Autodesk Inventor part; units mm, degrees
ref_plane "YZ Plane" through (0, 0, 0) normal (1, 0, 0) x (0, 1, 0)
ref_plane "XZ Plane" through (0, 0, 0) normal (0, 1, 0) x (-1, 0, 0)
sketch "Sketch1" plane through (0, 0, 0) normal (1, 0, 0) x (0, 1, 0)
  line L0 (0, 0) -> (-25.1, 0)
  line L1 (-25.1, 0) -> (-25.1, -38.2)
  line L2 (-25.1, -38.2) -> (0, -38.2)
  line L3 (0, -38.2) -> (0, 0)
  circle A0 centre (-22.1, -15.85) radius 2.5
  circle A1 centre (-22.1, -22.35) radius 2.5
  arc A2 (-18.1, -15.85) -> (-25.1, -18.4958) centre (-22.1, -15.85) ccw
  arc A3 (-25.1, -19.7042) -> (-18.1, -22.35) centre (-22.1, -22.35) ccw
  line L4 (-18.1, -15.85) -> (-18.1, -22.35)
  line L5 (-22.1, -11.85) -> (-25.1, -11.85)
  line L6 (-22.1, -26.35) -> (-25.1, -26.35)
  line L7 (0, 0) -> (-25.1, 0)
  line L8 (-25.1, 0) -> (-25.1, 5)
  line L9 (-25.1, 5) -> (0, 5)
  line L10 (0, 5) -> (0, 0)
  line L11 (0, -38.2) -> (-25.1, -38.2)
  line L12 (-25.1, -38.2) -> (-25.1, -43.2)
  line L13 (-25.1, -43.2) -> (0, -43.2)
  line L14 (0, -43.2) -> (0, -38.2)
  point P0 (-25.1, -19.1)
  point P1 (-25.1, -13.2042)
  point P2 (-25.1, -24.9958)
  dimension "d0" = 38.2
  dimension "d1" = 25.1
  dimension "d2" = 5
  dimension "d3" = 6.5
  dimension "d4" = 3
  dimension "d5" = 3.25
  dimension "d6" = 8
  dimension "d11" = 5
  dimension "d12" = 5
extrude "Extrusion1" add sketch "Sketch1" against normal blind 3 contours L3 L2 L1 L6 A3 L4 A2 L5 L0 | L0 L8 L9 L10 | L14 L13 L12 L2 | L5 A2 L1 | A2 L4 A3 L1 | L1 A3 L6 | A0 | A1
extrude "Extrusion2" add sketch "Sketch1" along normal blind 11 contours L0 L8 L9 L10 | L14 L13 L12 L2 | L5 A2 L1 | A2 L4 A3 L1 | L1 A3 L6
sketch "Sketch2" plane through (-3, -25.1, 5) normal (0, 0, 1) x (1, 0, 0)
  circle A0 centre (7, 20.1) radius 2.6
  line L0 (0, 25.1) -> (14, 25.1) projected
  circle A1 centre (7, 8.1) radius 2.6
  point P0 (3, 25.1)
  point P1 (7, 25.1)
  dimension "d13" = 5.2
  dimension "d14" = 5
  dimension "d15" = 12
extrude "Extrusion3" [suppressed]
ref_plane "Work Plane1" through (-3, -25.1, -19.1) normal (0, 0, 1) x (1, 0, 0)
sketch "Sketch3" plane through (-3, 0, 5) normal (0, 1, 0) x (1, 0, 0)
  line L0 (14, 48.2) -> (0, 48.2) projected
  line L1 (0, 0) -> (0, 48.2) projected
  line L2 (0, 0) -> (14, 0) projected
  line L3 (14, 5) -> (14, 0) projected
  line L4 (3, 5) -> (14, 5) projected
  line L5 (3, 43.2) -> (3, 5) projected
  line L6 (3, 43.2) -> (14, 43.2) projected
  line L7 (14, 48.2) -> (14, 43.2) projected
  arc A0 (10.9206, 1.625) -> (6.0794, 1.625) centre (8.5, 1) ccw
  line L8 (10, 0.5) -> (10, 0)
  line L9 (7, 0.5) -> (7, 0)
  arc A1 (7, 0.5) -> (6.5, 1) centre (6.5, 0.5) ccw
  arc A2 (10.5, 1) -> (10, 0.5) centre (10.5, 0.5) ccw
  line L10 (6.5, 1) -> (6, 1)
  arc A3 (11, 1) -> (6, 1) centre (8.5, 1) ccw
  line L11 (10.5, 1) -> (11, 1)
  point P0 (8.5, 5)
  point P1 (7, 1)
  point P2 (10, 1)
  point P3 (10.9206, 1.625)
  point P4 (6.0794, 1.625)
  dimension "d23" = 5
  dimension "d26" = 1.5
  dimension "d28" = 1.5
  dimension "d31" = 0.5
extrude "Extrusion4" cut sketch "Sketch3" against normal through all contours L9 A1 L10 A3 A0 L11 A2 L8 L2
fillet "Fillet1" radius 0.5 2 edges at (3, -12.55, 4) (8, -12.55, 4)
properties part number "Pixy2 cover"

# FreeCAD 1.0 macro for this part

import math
import FreeCAD as App
import Part
import Sketcher
from FreeCAD import Vector
Q = App.Units.Quantity


def edges_at(feature, points):
    """Names of the edges that pass closest to the given points."""
    edges = feature.Shape.Edges
    near = lambda p: min(range(len(edges)), key=lambda i: edges[i].distToShape(Part.Vertex(*p))[0])
    return sorted({f"Edge{near(p) + 1}" for p in points})


def add_polygon(sketch, points):
    """Adds a closed chain of lines whose ends are joined by coincident constraints."""
    first, n = sketch.GeometryCount, len(points)
    for a, b in zip(points, points[1:] + points[:1]):
        sketch.addGeometry(Part.LineSegment(App.Vector(*a, 0), App.Vector(*b, 0)), False)
    for i in range(n):
        sketch.addConstraint(Sketcher.Constraint("Coincident", first + i, 2, first + (i + 1) % n, 1))

doc = App.newDocument("Part")
params = doc.addObject("Spreadsheet::Sheet", "Params")
for row, (alias, value) in enumerate([
    ("sketch1_width", "25.1 mm"),
    ("sketch1_height", "48.2 mm"),
    ("pad1_length", "3 mm"),
    ("sketch2_diameter", "5 mm"),
    ("sketch2_radius", "4 mm"),
    ("sketch2_width", "3 mm"),
    ("sketch2_height", "5 mm"),
    ("sketch2_width2", "25.1 mm"),
    ("pad2_length", "11 mm"),
    ("sketch3_radius", "0.5 mm"),
    ("sketch3_radius2", "2.5 mm"),
    ("sketch3_width", "0.5 mm"),
    ("fillet_radius", "0.5 mm"),
], start=1):
    params.set(f"A{row}", alias)
    params.set(f"B{row}", "=" + value)
    params.setAlias(f"B{row}", alias)

body = doc.addObject("PartDesign::Body", "Body")

# Sketch on YZ plane
sketch1 = body.newObject("Sketcher::SketchObject", "Sketch")
sketch1.AttachmentSupport = (doc.getObject("YZ_Plane"), [""])
sketch1.MapMode = "FlatFace"
add_polygon(sketch1, [(0, 5), (-25.1, 5), (-25.1, -43.2), (0, -43.2)])  # lines 0-3
sketch1.addConstraint([
    Sketcher.Constraint("Horizontal", 0),
    Sketcher.Constraint("Vertical", 1),
    Sketcher.Constraint("Horizontal", 2),
    Sketcher.Constraint("Vertical", 3),
    Sketcher.Constraint("PointOnObject", 2, 2, -2),
    Sketcher.Constraint("DistanceX", 0, 2, 0, 1, Q("25.1 mm")),
    Sketcher.Constraint("DistanceY", -1, 1, 0, 2, Q("5 mm")),
    Sketcher.Constraint("DistanceY", 1, 2, 1, 1, Q("48.2 mm")),
])
sketch1.setExpression("Constraints[9]", "Params.sketch1_width")
sketch1.setExpression("Constraints[11]", "Params.sketch1_height")
pad1 = body.newObject("PartDesign::Pad", "Pad")
pad1.Profile = sketch1
pad1.setExpression("Length", "Params.pad1_length")
pad1.Reversed = True

# Sketch on YZ plane
sketch2 = body.newObject("Sketcher::SketchObject", "Sketch001")
sketch2.AttachmentSupport = (doc.getObject("YZ_Plane"), [""])
sketch2.MapMode = "FlatFace"
add_polygon(sketch2, [(-25.1, 0), (0, 0), (0, 5), (-25.1, 5)])  # lines 0-3
add_polygon(sketch2, [(0, -43.2), (0, -38.2), (-25.1, -38.2), (-25.1, -43.2)])  # lines 4-7
sketch2.addGeometry(Part.LineSegment(Vector(-22.1, -11.85, 0), Vector(-25.1, -11.85, 0)), False)  # 8
sketch2.addGeometry(Part.LineSegment(Vector(-25.1, -11.85, 0), Vector(-25.1, -26.35, 0)), False)  # 9
sketch2.addGeometry(Part.LineSegment(Vector(-25.1, -26.35, 0), Vector(-22.1, -26.35, 0)), False)  # 10
sketch2.addGeometry(Part.ArcOfCircle(Part.Circle(Vector(-22.1, -22.35, 0), Vector(0, 0, 1), 4.000032), math.radians(-90), math.radians(0)), False)  # 11
sketch2.addGeometry(Part.LineSegment(Vector(-18.1, -22.35, 0), Vector(-18.1, -15.85, 0)), False)  # 12
sketch2.addGeometry(Part.ArcOfCircle(Part.Circle(Vector(-22.1, -15.85, 0), Vector(0, 0, 1), 4), math.radians(0), math.radians(90)), False)  # 13
sketch2.addGeometry(Part.Circle(Vector(-22.1, -15.85, 0), Vector(0, 0, 1), 2.5), False)  # 14
sketch2.addGeometry(Part.Circle(Vector(-22.1, -22.35, 0), Vector(0, 0, 1), 2.5), False)  # 15
sketch2.addConstraint([
    Sketcher.Constraint("Coincident", 8, 2, 9, 1),
    Sketcher.Constraint("Coincident", 9, 2, 10, 1),
    Sketcher.Constraint("Tangent", 10, 2, 11, 1),
    Sketcher.Constraint("Tangent", 11, 2, 12, 1),
    Sketcher.Constraint("Tangent", 12, 2, 13, 1),
    Sketcher.Constraint("Tangent", 13, 2, 8, 1),
    Sketcher.Constraint("Horizontal", 0),
    Sketcher.Constraint("Vertical", 1),
    Sketcher.Constraint("Horizontal", 2),
    Sketcher.Constraint("Vertical", 3),
    Sketcher.Constraint("Vertical", 4),
    Sketcher.Constraint("Horizontal", 5),
    Sketcher.Constraint("Vertical", 6),
    Sketcher.Constraint("Horizontal", 7),
    Sketcher.Constraint("Horizontal", 8),
    Sketcher.Constraint("Vertical", 9),
    Sketcher.Constraint("Horizontal", 10),
    Sketcher.Constraint("Vertical", 12),
    Sketcher.Constraint("Coincident", 0, 2, -1, 1),
    Sketcher.Constraint("Coincident", 14, 3, 13, 3),
    Sketcher.Constraint("Coincident", 15, 3, 11, 3),
    Sketcher.Constraint("Equal", 11, 13),
    Sketcher.Constraint("Equal", 14, 15),
    Sketcher.Constraint("PointOnObject", 4, 2, -2),
    Sketcher.Constraint("Vertical", 3, 2, 5, 2),
    Sketcher.Constraint("Vertical", 6, 2, 8, 2),
    Sketcher.Constraint("Equal", 3, 4),
    Sketcher.Constraint("Diameter", 14, Q("5 mm")),
    Sketcher.Constraint("Radius", 11, Q("4 mm")),
    Sketcher.Constraint("DistanceX", 8, 2, 8, 1, Q("3 mm")),
    Sketcher.Constraint("DistanceY", 1, 1, 1, 2, Q("5 mm")),
    Sketcher.Constraint("DistanceX", 0, 1, 0, 2, Q("25.1 mm")),
    Sketcher.Constraint("DistanceY", 12, 1, 12, 2, Q("6.5 mm")),
    Sketcher.Constraint("DistanceY", 4, 2, -1, 1, Q("38.2 mm")),
    Sketcher.Constraint("DistanceY", 11, 3, -1, 1, Q("22.35 mm")),
])
sketch2.setExpression("Constraints[35]", "Params.sketch2_diameter")
sketch2.setExpression("Constraints[36]", "Params.sketch2_radius")
sketch2.setExpression("Constraints[37]", "Params.sketch2_width")
sketch2.setExpression("Constraints[38]", "Params.sketch2_height")
sketch2.setExpression("Constraints[39]", "Params.sketch2_width2")
pad2 = body.newObject("PartDesign::Pad", "Pad001")
pad2.Profile = sketch2
pad2.setExpression("Length", "Params.pad2_length")

# Sketch on XZ plane
sketch3 = body.newObject("Sketcher::SketchObject", "Sketch002")
sketch3.AttachmentSupport = (doc.getObject("XZ_Plane"), [""])
sketch3.MapMode = "FlatFace"
sketch3.addGeometry([
    Part.LineSegment(Vector(4, 4.5, 0), Vector(4, 5, 0)),  # 0
    Part.LineSegment(Vector(4, 5, 0), Vector(7, 5, 0)),  # 1
    Part.LineSegment(Vector(7, 5, 0), Vector(7, 4.5, 0)),  # 2
    Part.ArcOfCircle(Part.Circle(Vector(7.5, 4.5, 0), Vector(0, 0, 1), 0.5), math.radians(180), math.radians(270)),  # 3
    Part.LineSegment(Vector(7.5, 4, 0), Vector(8, 4, 0)),  # 4
    Part.ArcOfCircle(Part.Circle(Vector(5.5, 4, 0), Vector(0, 0, 1), 2.5), math.radians(180), math.radians(360)),  # 5
    Part.LineSegment(Vector(3, 4, 0), Vector(3.5, 4, 0)),  # 6
    Part.ArcOfCircle(Part.Circle(Vector(3.5, 4.5, 0), Vector(0, 0, 1), 0.5), math.radians(-90), math.radians(0)),  # 7
], False)
sketch3.addConstraint([
    Sketcher.Constraint("Coincident", 0, 2, 1, 1),
    Sketcher.Constraint("Coincident", 1, 2, 2, 1),
    Sketcher.Constraint("Tangent", 2, 2, 3, 1),
    Sketcher.Constraint("Tangent", 3, 2, 4, 1),
    Sketcher.Constraint("Coincident", 4, 2, 5, 2),
    Sketcher.Constraint("Coincident", 5, 1, 6, 1),
    Sketcher.Constraint("Tangent", 6, 2, 7, 1),
    Sketcher.Constraint("Tangent", 7, 2, 0, 1),
    Sketcher.Constraint("Vertical", 0),
    Sketcher.Constraint("Horizontal", 1),
    Sketcher.Constraint("Vertical", 2),
    Sketcher.Constraint("Horizontal", 4),
    Sketcher.Constraint("Horizontal", 6),
    Sketcher.Constraint("Equal", 3, 7),
    Sketcher.Constraint("Horizontal", 3, 3, 7, 3),
    Sketcher.Constraint("Horizontal", 5, 3, 3, 2),
    Sketcher.Constraint("Equal", 4, 6),
    Sketcher.Constraint("Equal", 6, 0),
    Sketcher.Constraint("Radius", 3, Q("0.5 mm")),
    Sketcher.Constraint("Radius", 5, Q("2.5 mm")),
    Sketcher.Constraint("DistanceX", 4, 1, 4, 2, Q("0.5 mm")),
    Sketcher.Constraint("DistanceY", -1, 1, 0, 2, Q("5 mm")),
    Sketcher.Constraint("DistanceX", -1, 1, 0, 2, Q("4 mm")),
])
sketch3.setExpression("Constraints[18]", "Params.sketch3_radius")
sketch3.setExpression("Constraints[19]", "Params.sketch3_radius2")
sketch3.setExpression("Constraints[20]", "Params.sketch3_width")
pocket1 = body.newObject("PartDesign::Pocket", "Pocket")
pocket1.Profile = sketch3
pocket1.Type = "ThroughAll"
pocket1.Reversed = True
doc.recompute()

fillet = body.newObject("PartDesign::Fillet", "Fillet")
fillet.Base = (pocket1, edges_at(pocket1, [(3, -12.55, 4), (8, -12.55, 4)]))
fillet.setExpression("Radius", "Params.fillet_radius")

doc.recompute()
